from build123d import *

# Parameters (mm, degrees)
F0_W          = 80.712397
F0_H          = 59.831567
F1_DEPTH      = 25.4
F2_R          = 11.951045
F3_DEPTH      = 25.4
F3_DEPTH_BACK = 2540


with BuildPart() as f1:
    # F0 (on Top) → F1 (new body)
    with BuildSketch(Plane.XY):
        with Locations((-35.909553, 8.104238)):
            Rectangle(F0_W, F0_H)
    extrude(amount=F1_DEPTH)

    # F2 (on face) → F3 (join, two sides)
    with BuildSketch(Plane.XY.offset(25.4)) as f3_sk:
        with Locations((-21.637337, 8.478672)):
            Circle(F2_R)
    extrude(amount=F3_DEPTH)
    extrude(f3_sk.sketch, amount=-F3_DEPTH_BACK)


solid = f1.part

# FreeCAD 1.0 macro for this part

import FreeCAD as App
import Part
import Sketcher
Q = App.Units.Quantity


def add_polygon(sketch, points):
    """Adds a closed chain of lines whose ends are joined by coincident constraints."""
    first, n = sketch.GeometryCount, len(points)
    for a, b in zip(points, points[1:] + points[:1]):
        sketch.addGeometry(Part.LineSegment(App.Vector(*a, 0), App.Vector(*b, 0)), False)
    for i in range(n):
        sketch.addConstraint(Sketcher.Constraint("Coincident", first + i, 2, first + (i + 1) % n, 1))

doc = App.newDocument("Part")
body = doc.addObject("PartDesign::Body", "Body")

sketch1 = body.newObject("Sketcher::SketchObject", "Sketch")
sketch1.AttachmentSupport = (doc.getObject("XY_Plane"), [""])
sketch1.MapMode = "FlatFace"
add_polygon(sketch1, [(-76, 38), (-76, -22), (4, -22), (4, 38)])
sketch1.addConstraint(Sketcher.Constraint("Vertical", 0))
sketch1.addConstraint(Sketcher.Constraint("Horizontal", 1))
sketch1.addConstraint(Sketcher.Constraint("Vertical", 2))
sketch1.addConstraint(Sketcher.Constraint("Horizontal", 3))
sketch1.addConstraint(Sketcher.Constraint("DistanceX", 1, 1, 1, 2, Q("80.712397 mm")))
sketch1.addConstraint(Sketcher.Constraint("DistanceY", 0, 2, 0, 1, Q("59.831567 mm")))
sketch1.addConstraint(Sketcher.Constraint("DistanceX", 0, 2, -1, 1, Q("76.265751 mm")))
sketch1.addConstraint(Sketcher.Constraint("DistanceY", -1, 1, 2, 2, Q("38.020021 mm")))
pad1 = body.newObject("PartDesign::Pad", "Pad")
pad1.Profile = sketch1
pad1.Length = Q("1 in")

sketch2 = body.newObject("Sketcher::SketchObject", "Sketch001")
sketch2.AttachmentSupport = (doc.getObject("XY_Plane"), [""])
sketch2.MapMode = "FlatFace"
sketch2.AttachmentOffset = App.Placement(App.Vector(0, 0, 1 * 25.4), App.Rotation())
sketch2.addGeometry(Part.Circle(App.Vector(-22, 8, 0), App.Vector(0, 0, 1), 12), False)
sketch2.addConstraint(Sketcher.Constraint("Diameter", 0, Q("23.90209 mm")))
sketch2.addConstraint(Sketcher.Constraint("DistanceX", 0, 3, -1, 1, Q("21.637337 mm")))
sketch2.addConstraint(Sketcher.Constraint("DistanceY", -1, 1, 0, 3, Q("8.478672 mm")))
pad2 = body.newObject("PartDesign::Pad", "Pad001")
pad2.Profile = sketch2
pad2.Type = "TwoLengths"
pad2.Length = Q("1 in")
pad2.Length2 = Q("100 in")

doc.recompute()
